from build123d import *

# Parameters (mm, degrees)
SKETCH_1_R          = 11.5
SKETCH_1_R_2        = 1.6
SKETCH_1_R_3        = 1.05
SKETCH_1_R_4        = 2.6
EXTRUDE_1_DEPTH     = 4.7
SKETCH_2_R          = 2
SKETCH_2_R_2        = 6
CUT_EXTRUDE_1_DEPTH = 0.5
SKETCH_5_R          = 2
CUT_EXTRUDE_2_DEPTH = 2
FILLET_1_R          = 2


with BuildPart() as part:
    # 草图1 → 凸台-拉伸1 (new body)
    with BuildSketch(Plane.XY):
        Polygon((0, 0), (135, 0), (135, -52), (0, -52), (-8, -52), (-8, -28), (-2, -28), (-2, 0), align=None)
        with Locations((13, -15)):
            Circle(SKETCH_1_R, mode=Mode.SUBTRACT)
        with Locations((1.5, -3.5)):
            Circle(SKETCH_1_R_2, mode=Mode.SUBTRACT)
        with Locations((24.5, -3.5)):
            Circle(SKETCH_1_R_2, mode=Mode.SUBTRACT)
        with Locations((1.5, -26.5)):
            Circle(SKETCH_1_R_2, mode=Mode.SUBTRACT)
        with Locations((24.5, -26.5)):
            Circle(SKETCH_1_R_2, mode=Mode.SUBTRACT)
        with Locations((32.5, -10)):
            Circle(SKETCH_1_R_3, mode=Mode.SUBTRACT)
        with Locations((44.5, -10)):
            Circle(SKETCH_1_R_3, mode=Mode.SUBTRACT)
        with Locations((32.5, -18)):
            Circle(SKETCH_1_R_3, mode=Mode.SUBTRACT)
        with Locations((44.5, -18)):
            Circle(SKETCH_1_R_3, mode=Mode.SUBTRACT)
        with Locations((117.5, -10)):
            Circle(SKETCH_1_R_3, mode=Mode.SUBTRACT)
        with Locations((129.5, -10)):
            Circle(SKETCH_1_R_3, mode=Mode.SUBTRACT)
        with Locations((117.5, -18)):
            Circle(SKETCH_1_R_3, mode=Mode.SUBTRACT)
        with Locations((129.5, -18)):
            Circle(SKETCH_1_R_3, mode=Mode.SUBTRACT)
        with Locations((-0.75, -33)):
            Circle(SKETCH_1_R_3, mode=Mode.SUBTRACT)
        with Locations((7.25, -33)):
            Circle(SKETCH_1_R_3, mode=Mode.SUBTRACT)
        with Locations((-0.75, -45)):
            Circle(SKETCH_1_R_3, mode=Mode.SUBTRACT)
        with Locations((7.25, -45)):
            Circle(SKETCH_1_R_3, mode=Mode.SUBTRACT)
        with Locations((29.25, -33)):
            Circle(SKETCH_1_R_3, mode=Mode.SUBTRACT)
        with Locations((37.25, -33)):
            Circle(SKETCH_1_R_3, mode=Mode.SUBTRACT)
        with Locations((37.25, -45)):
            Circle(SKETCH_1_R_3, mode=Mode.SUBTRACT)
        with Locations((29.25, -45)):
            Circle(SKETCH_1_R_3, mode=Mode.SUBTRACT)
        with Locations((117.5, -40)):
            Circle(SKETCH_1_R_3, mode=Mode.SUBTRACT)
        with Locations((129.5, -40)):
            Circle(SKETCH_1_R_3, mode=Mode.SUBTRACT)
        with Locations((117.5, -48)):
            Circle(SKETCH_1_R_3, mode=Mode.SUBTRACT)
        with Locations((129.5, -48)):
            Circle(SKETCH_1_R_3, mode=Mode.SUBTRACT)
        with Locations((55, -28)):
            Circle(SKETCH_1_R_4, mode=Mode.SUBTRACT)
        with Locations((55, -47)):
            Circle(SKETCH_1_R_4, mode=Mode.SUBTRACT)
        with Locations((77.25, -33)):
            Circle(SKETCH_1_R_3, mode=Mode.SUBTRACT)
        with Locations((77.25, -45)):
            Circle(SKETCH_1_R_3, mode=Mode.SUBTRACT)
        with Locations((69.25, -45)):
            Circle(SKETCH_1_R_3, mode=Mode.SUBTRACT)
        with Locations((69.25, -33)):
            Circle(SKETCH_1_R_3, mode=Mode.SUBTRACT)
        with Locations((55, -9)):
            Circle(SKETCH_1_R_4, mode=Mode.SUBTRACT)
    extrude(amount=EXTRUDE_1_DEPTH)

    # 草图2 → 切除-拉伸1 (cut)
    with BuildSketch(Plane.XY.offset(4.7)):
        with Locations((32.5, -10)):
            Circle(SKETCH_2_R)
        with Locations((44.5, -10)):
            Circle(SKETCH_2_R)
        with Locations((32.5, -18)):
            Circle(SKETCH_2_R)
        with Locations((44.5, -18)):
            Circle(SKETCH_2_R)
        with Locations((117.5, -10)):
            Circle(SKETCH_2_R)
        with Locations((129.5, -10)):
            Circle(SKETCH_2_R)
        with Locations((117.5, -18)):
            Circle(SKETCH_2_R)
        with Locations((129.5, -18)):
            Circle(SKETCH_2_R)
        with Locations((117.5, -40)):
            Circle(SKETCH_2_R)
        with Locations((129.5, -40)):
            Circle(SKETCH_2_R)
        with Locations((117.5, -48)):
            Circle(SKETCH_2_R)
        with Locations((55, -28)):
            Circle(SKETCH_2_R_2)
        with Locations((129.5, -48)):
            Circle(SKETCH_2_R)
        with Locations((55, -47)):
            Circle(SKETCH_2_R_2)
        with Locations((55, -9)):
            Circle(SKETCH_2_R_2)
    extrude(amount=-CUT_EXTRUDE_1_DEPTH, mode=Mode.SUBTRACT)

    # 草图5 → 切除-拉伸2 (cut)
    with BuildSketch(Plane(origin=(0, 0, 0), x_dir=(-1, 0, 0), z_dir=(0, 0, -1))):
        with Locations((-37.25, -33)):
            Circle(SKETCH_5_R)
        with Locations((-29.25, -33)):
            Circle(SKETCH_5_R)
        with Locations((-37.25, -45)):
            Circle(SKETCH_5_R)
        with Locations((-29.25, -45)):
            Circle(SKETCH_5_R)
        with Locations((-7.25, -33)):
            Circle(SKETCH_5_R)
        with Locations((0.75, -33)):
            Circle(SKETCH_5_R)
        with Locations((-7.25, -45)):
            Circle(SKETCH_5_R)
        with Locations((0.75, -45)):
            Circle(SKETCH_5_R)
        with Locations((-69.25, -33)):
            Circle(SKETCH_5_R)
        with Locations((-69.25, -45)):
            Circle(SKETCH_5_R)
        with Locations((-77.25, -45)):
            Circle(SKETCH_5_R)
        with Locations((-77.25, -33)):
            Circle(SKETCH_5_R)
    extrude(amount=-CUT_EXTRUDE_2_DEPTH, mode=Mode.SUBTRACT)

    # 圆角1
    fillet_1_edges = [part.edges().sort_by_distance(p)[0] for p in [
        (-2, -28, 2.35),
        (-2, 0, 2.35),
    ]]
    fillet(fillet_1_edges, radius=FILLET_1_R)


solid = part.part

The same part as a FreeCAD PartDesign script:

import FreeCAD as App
import Part
import Sketcher
from FreeCAD import Vector


def edges_at(feature, points):
    """Names of the edges that pass closest to the given points."""
    edges = feature.Shape.Edges
    near = lambda p: min(range(len(edges)), key=lambda i: edges[i].distToShape(Part.Vertex(*p))[0])
    return sorted({f"Edge{near(p) + 1}" for p in points})

doc = App.newDocument("Part")
body = doc.addObject("PartDesign::Body", "Body")

# Sketch on XY plane
sketch1 = body.newObject("Sketcher::SketchObject", "Sketch")
sketch1.AttachmentSupport = (doc.getObject("XY_Plane"), [""])
sketch1.MapMode = "FlatFace"
sketch1.addGeometry([
    Part.LineSegment(Vector(135, 0, 0), Vector(-2, 0, 0)),  # 0
    Part.LineSegment(Vector(-2, 0, 0), Vector(-2, -28, 0)),  # 1
    Part.LineSegment(Vector(-2, -28, 0), Vector(-8, -28, 0)),  # 2
    Part.LineSegment(Vector(-8, -28, 0), Vector(-8, -52, 0)),  # 3
    Part.LineSegment(Vector(-8, -52, 0), Vector(135, -52, 0)),  # 4
    Part.LineSegment(Vector(135, -52, 0), Vector(135, 0, 0)),  # 5
    Part.Circle(Vector(129.5, -48, 0), Vector(0, 0, 1), 1.05),  # 6
    Part.Circle(Vector(117.5, -48, 0), Vector(0, 0, 1), 1.05),  # 7
    Part.Circle(Vector(129.5, -40, 0), Vector(0, 0, 1), 1.05),  # 8
    Part.Circle(Vector(117.5, -40, 0), Vector(0, 0, 1), 1.05),  # 9
    Part.Circle(Vector(77.25, -45, 0), Vector(0, 0, 1), 1.05),  # 10
    Part.Circle(Vector(69.25, -45, 0), Vector(0, 0, 1), 1.05),  # 11
    Part.Circle(Vector(77.25, -33, 0), Vector(0, 0, 1), 1.05),  # 12
    Part.Circle(Vector(69.25, -33, 0), Vector(0, 0, 1), 1.05),  # 13
    Part.Circle(Vector(55, -47, 0), Vector(0, 0, 1), 2.6),  # 14
    Part.Circle(Vector(37.25, -45, 0), Vector(0, 0, 1), 1.05),  # 15
    Part.Circle(Vector(29.25, -45, 0), Vector(0, 0, 1), 1.05),  # 16
    Part.Circle(Vector(7.25, -45, 0), Vector(0, 0, 1), 1.05),  # 17
    Part.Circle(Vector(-0.75, -45, 0), Vector(0, 0, 1), 1.05),  # 18
    Part.Circle(Vector(37.25, -33, 0), Vector(0, 0, 1), 1.05),  # 19
    Part.Circle(Vector(55, -28, 0), Vector(0, 0, 1), 2.6),  # 20
    Part.Circle(Vector(29.25, -33, 0), Vector(0, 0, 1), 1.05),  # 21
    Part.Circle(Vector(7.25, -33, 0), Vector(0, 0, 1), 1.05),  # 22
    Part.Circle(Vector(-0.75, -33, 0), Vector(0, 0, 1), 1.05),  # 23
    Part.Circle(Vector(24.5, -26.5, 0), Vector(0, 0, 1), 1.6),  # 24
    Part.Circle(Vector(1.5, -26.5, 0), Vector(0, 0, 1), 1.6),  # 25
    Part.Circle(Vector(129.5, -18, 0), Vector(0, 0, 1), 1.05),  # 26
    Part.Circle(Vector(117.5, -18, 0), Vector(0, 0, 1), 1.05),  # 27
    Part.Circle(Vector(129.5, -10, 0), Vector(0, 0, 1), 1.05),  # 28
    Part.Circle(Vector(117.5, -10, 0), Vector(0, 0, 1), 1.05),  # 29
    Part.Circle(Vector(44.5, -18, 0), Vector(0, 0, 1), 1.05),  # 30
    Part.Circle(Vector(32.5, -18, 0), Vector(0, 0, 1), 1.05),  # 31
    Part.Circle(Vector(13, -15, 0), Vector(0, 0, 1), 11.5),  # 32
    Part.Circle(Vector(55, -9, 0), Vector(0, 0, 1), 2.6),  # 33
    Part.Circle(Vector(44.5, -10, 0), Vector(0, 0, 1), 1.05),  # 34
    Part.Circle(Vector(32.5, -10, 0), Vector(0, 0, 1), 1.05),  # 35
    Part.Circle(Vector(24.5, -3.5, 0), Vector(0, 0, 1), 1.6),  # 36
    Part.Circle(Vector(1.5, -3.5, 0), Vector(0, 0, 1), 1.6),  # 37
], False)
sketch1.addConstraint([
    Sketcher.Constraint("Coincident", 0, 2, 1, 1),
    Sketcher.Constraint("Coincident", 1, 2, 2, 1),
    Sketcher.Constraint("Coincident", 2, 2, 3, 1),
    Sketcher.Constraint("Coincident", 3, 2, 4, 1),
    Sketcher.Constraint("Coincident", 4, 2, 5, 1),
    Sketcher.Constraint("Coincident", 5, 2, 0, 1),
    Sketcher.Constraint("Horizontal", 0),
    Sketcher.Constraint("Vertical", 1),
    Sketcher.Constraint("Horizontal", 2),
    Sketcher.Constraint("Vertical", 3),
    Sketcher.Constraint("Horizontal", 4),
    Sketcher.Constraint("Vertical", 5),
    Sketcher.Constraint("Equal", 6, 7),
    Sketcher.Constraint("Equal", 7, 8),
    Sketcher.Constraint("Equal", 8, 9),
    Sketcher.Constraint("Equal", 9, 10),
    Sketcher.Constraint("Equal", 10, 11),
    Sketcher.Constraint("Equal", 11, 12),
    Sketcher.Constraint("Equal", 12, 13),
    Sketcher.Constraint("Equal", 13, 15),
    Sketcher.Constraint("Equal", 15, 16),
    Sketcher.Constraint("Equal", 16, 17),
    Sketcher.Constraint("Equal", 17, 18),
    Sketcher.Constraint("Equal", 18, 19),
    Sketcher.Constraint("Equal", 14, 20),
    Sketcher.Constraint("Equal", 19, 21),
    Sketcher.Constraint("Equal", 21, 22),
    Sketcher.Constraint("Equal", 22, 23),
    Sketcher.Constraint("Equal", 24, 25),
    Sketcher.Constraint("Equal", 23, 26),
    Sketcher.Constraint("Equal", 26, 27),
    Sketcher.Constraint("Equal", 27, 28),
    Sketcher.Constraint("Equal", 28, 29),
    Sketcher.Constraint("Equal", 29, 30),
    Sketcher.Constraint("Equal", 30, 31),
    Sketcher.Constraint("Equal", 20, 33),
    Sketcher.Constraint("Equal", 31, 34),
    Sketcher.Constraint("Equal", 34, 35),
    Sketcher.Constraint("Equal", 25, 36),
    Sketcher.Constraint("Equal", 36, 37),
    Sketcher.Constraint("PointOnObject", 0, 2, -1),
    Sketcher.Constraint("Horizontal", 6, 3, 7, 3),
    Sketcher.Constraint("Horizontal", 8, 3, 9, 3),
    Sketcher.Constraint("Horizontal", 10, 3, 11, 3),
    Sketcher.Constraint("Horizontal", 12, 3, 13, 3),
    Sketcher.Constraint("Horizontal", 11, 3, 15, 3),
    Sketcher.Constraint("Horizontal", 15, 3, 16, 3),
    Sketcher.Constraint("Horizontal", 16, 3, 17, 3),
    Sketcher.Constraint("Horizontal", 17, 3, 18, 3),
    Sketcher.Constraint("Horizontal", 13, 3, 19, 3),
    Sketcher.Constraint("Horizontal", 19, 3, 21, 3),
    Sketcher.Constraint("Horizontal", 21, 3, 22, 3),
    Sketcher.Constraint("Horizontal", 22, 3, 23, 3),
    Sketcher.Constraint("Horizontal", 24, 3, 25, 3),
    Sketcher.Constraint("Horizontal", 26, 3, 27, 3),
    Sketcher.Constraint("Horizontal", 28, 3, 29, 3),
    Sketcher.Constraint("Horizontal", 27, 3, 30, 3),
    Sketcher.Constraint("Horizontal", 30, 3, 31, 3),
    Sketcher.Constraint("Horizontal", 29, 3, 34, 3),
    Sketcher.Constraint("Horizontal", 34, 3, 35, 3),
    Sketcher.Constraint("Horizontal", 36, 3, 37, 3),
    Sketcher.Constraint("Horizontal", 20, 3, 1, 2),
    Sketcher.Constraint("Vertical", 6, 3, 8, 3),
    Sketcher.Constraint("Vertical", 7, 3, 9, 3),
    Sketcher.Constraint("Vertical", 10, 3, 12, 3),
    Sketcher.Constraint("Vertical", 11, 3, 13, 3),
    Sketcher.Constraint("Vertical", 15, 3, 19, 3),
    Sketcher.Constraint("Vertical", 14, 3, 20, 3),
    Sketcher.Constraint("Vertical", 16, 3, 21, 3),
    Sketcher.Constraint("Vertical", 17, 3, 22, 3),
    Sketcher.Constraint("Vertical", 18, 3, 23, 3),
    Sketcher.Constraint("Vertical", 8, 3, 26, 3),
    Sketcher.Constraint("Vertical", 9, 3, 27, 3),
    Sketcher.Constraint("Vertical", 26, 3, 28, 3),
    Sketcher.Constraint("Vertical", 27, 3, 29, 3),
    Sketcher.Constraint("Vertical", 20, 3, 33, 3),
    Sketcher.Constraint("Vertical", 30, 3, 34, 3),
    Sketcher.Constraint("Vertical", 31, 3, 35, 3),
    Sketcher.Constraint("Vertical", 24, 3, 36, 3),
    Sketcher.Constraint("Vertical", 25, 3, 37, 3),
    Sketcher.Constraint("Diameter", 32, 23.0),
    Sketcher.Constraint("Diameter", 6, 2.1),
    Sketcher.Constraint("Diameter", 14, 5.2),
    Sketcher.Constraint("Diameter", 24, 3.2),
    Sketcher.Constraint("DistanceX", 0, 2, 0, 1, 137.0),
    Sketcher.Constraint("DistanceX", 2, 2, 2, 1, 6.0),
    Sketcher.Constraint("DistanceY", 1, 2, 1, 1, 28.0),
    Sketcher.Constraint("DistanceY", 3, 2, 3, 1, 24.0),
    Sketcher.Constraint("DistanceY", 6, 3, -1, 1, 48.0),
    Sketcher.Constraint("DistanceY", 8, 3, -1, 1, 40.0),
    Sketcher.Constraint("DistanceY", 10, 3, -1, 1, 45.0),
    Sketcher.Constraint("DistanceY", 12, 3, -1, 1, 33.0),
    Sketcher.Constraint("DistanceX", -1, 1, 14, 3, 55.0),
    Sketcher.Constraint("DistanceY", 14, 3, -1, 1, 47.0),
    Sketcher.Constraint("DistanceY", 26, 3, -1, 1, 18.0),
    Sketcher.Constraint("DistanceY", 28, 3, -1, 1, 10.0),
    Sketcher.Constraint("DistanceX", -1, 1, 32, 3, 13.0),
    Sketcher.Constraint("DistanceY", 32, 3, -1, 1, 15.0),
    Sketcher.Constraint("DistanceY", 33, 3, -1, 1, 9.0),
    Sketcher.Constraint("DistanceX", 0, 2, -1, 1, 2.0),
    Sketcher.Constraint("DistanceX", 7, 3, 6, 3, 12.0),
    Sketcher.Constraint("DistanceX", 11, 3, 10, 3, 8.0),
    Sketcher.Constraint("DistanceX", 15, 3, 11, 3, 32.0),
    Sketcher.Constraint("DistanceX", 16, 3, 15, 3, 8.0),
    Sketcher.Constraint("DistanceX", 17, 3, 16, 3, 22.0),
    Sketcher.Constraint("DistanceX", 18, 3, 17, 3, 8.0),
    Sketcher.Constraint("DistanceX", 25, 3, 24, 3, 23.0),
    Sketcher.Constraint("DistanceX", 24, 3, 30, 3, 20.0),
    Sketcher.Constraint("DistanceX", 24, 3, 31, 3, 8.0),
    Sketcher.Constraint("DistanceY", 24, 3, 36, 3, 23.0),
    Sketcher.Constraint("DistanceX", -1, 1, 6, 3, 129.5),
    Sketcher.Constraint("DistanceX", -1, 1, 24, 3, 24.5),
    Sketcher.Constraint("DistanceY", 24, 3, -1, 1, 26.5),
    Sketcher.Constraint("DistanceX", -1, 1, 10, 3, 77.25),
])
pad1 = body.newObject("PartDesign::Pad", "Pad")
pad1.Profile = sketch1
pad1.Length = 4.7

# Sketch on XY plane
sketch2 = body.newObject("Sketcher::SketchObject", "Sketch001")
sketch2.AttachmentSupport = (doc.getObject("XY_Plane"), [""])
sketch2.MapMode = "FlatFace"
sketch2.AttachmentOffset = App.Placement(Vector(0, 0, 4.7), App.Rotation())
sketch2.addGeometry([
    Part.Circle(Vector(32.5, -10, 0), Vector(0, 0, 1), 2),  # 0
    Part.Circle(Vector(44.5, -10, 0), Vector(0, 0, 1), 2),  # 1
    Part.Circle(Vector(32.5, -18, 0), Vector(0, 0, 1), 2),  # 2
    Part.Circle(Vector(44.5, -18, 0), Vector(0, 0, 1), 2),  # 3
    Part.Circle(Vector(117.5, -10, 0), Vector(0, 0, 1), 2),  # 4
    Part.Circle(Vector(129.5, -10, 0), Vector(0, 0, 1), 2),  # 5
    Part.Circle(Vector(117.5, -18, 0), Vector(0, 0, 1), 2),  # 6
    Part.Circle(Vector(129.5, -18, 0), Vector(0, 0, 1), 2),  # 7
    Part.Circle(Vector(117.5, -40, 0), Vector(0, 0, 1), 2),  # 8
    Part.Circle(Vector(129.5, -40, 0), Vector(0, 0, 1), 2),  # 9
    Part.Circle(Vector(117.5, -48, 0), Vector(0, 0, 1), 2),  # 10
    Part.Circle(Vector(55, -28, 0), Vector(0, 0, 1), 6),  # 11
    Part.Circle(Vector(129.5, -48, 0), Vector(0, 0, 1), 2),  # 12
    Part.Circle(Vector(55, -47, 0), Vector(0, 0, 1), 6),  # 13
    Part.Circle(Vector(55, -9, 0), Vector(0, 0, 1), 6),  # 14
], False)
sketch2.addConstraint([
    Sketcher.Constraint("Equal", 0, 1),
    Sketcher.Constraint("Equal", 1, 2),
    Sketcher.Constraint("Equal", 2, 3),
    Sketcher.Constraint("Equal", 3, 4),
    Sketcher.Constraint("Equal", 4, 5),
    Sketcher.Constraint("Equal", 5, 6),
    Sketcher.Constraint("Equal", 6, 7),
    Sketcher.Constraint("Equal", 7, 8),
    Sketcher.Constraint("Equal", 8, 9),
    Sketcher.Constraint("Equal", 9, 10),
    Sketcher.Constraint("Equal", 10, 12),
    Sketcher.Constraint("Equal", 11, 13),
    Sketcher.Constraint("Equal", 13, 14),
    Sketcher.Constraint("Horizontal", 0, 3, 1, 3),
    Sketcher.Constraint("Horizontal", 2, 3, 3, 3),
    Sketcher.Constraint("Horizontal", 1, 3, 4, 3),
    Sketcher.Constraint("Horizontal", 4, 3, 5, 3),
    Sketcher.Constraint("Horizontal", 3, 3, 6, 3),
    Sketcher.Constraint("Horizontal", 6, 3, 7, 3),
    Sketcher.Constraint("Horizontal", 8, 3, 9, 3),
    Sketcher.Constraint("Horizontal", 10, 3, 12, 3),
    Sketcher.Constraint("Vertical", 0, 3, 2, 3),
    Sketcher.Constraint("Vertical", 1, 3, 3, 3),
    Sketcher.Constraint("Vertical", 4, 3, 6, 3),
    Sketcher.Constraint("Vertical", 5, 3, 7, 3),
    Sketcher.Constraint("Vertical", 6, 3, 8, 3),
    Sketcher.Constraint("Vertical", 7, 3, 9, 3),
    Sketcher.Constraint("Vertical", 8, 3, 10, 3),
    Sketcher.Constraint("Vertical", 9, 3, 12, 3),
    Sketcher.Constraint("Vertical", 11, 3, 13, 3),
    Sketcher.Constraint("Vertical", 13, 3, 14, 3),
    Sketcher.Constraint("Diameter", 0, 4.0),
    Sketcher.Constraint("Diameter", 11, 12.0),
    Sketcher.Constraint("DistanceY", 0, 3, -1, 1, 10.0),
    Sketcher.Constraint("DistanceY", 2, 3, -1, 1, 18.0),
    Sketcher.Constraint("DistanceY", 8, 3, -1, 1, 40.0),
    Sketcher.Constraint("DistanceY", 10, 3, -1, 1, 48.0),
    Sketcher.Constraint("DistanceX", -1, 1, 11, 3, 55.0),
    Sketcher.Constraint("DistanceY", 11, 3, -1, 1, 28.0),
    Sketcher.Constraint("DistanceY", 13, 3, -1, 1, 47.0),
    Sketcher.Constraint("DistanceY", 14, 3, -1, 1, 9.0),
    Sketcher.Constraint("DistanceX", 0, 3, 1, 3, 12.0),
    Sketcher.Constraint("DistanceX", 1, 3, 4, 3, 73.0),
    Sketcher.Constraint("DistanceX", 4, 3, 5, 3, 12.0),
    Sketcher.Constraint("DistanceX", -1, 1, 0, 3, 32.5),
])
pocket1 = body.newObject("PartDesign::Pocket", "Pocket")
pocket1.Profile = sketch2
pocket1.Length = 0.5

# Sketch on XY plane
sketch3 = body.newObject("Sketcher::SketchObject", "Sketch002")
sketch3.AttachmentSupport = (doc.getObject("XY_Plane"), [""])
sketch3.MapMode = "FlatFace"
sketch3.addGeometry([
    Part.Circle(Vector(37.25, -33, 0), Vector(0, 0, 1), 2),  # 0
    Part.Circle(Vector(29.25, -33, 0), Vector(0, 0, 1), 2),  # 1
    Part.Circle(Vector(37.25, -45, 0), Vector(0, 0, 1), 2),  # 2
    Part.Circle(Vector(29.25, -45, 0), Vector(0, 0, 1), 2),  # 3
    Part.Circle(Vector(7.25, -33, 0), Vector(0, 0, 1), 2),  # 4
    Part.Circle(Vector(-0.75, -33, 0), Vector(0, 0, 1), 2),  # 5
    Part.Circle(Vector(7.25, -45, 0), Vector(0, 0, 1), 2),  # 6
    Part.Circle(Vector(-0.75, -45, 0), Vector(0, 0, 1), 2),  # 7
    Part.Circle(Vector(69.25, -33, 0), Vector(0, 0, 1), 2),  # 8
    Part.Circle(Vector(69.25, -45, 0), Vector(0, 0, 1), 2),  # 9
    Part.Circle(Vector(77.25, -45, 0), Vector(0, 0, 1), 2),  # 10
    Part.Circle(Vector(77.25, -33, 0), Vector(0, 0, 1), 2),  # 11
], False)
sketch3.addConstraint([
    Sketcher.Constraint("Equal", 0, 1),
    Sketcher.Constraint("Equal", 1, 2),
    Sketcher.Constraint("Equal", 2, 3),
    Sketcher.Constraint("Equal", 3, 4),
    Sketcher.Constraint("Equal", 4, 5),
    Sketcher.Constraint("Equal", 5, 6),
    Sketcher.Constraint("Equal", 6, 7),
    Sketcher.Constraint("Equal", 7, 8),
    Sketcher.Constraint("Equal", 8, 9),
    Sketcher.Constraint("Equal", 9, 10),
    Sketcher.Constraint("Equal", 10, 11),
    Sketcher.Constraint("Horizontal", 0, 3, 1, 3),
    Sketcher.Constraint("Horizontal", 2, 3, 3, 3),
    Sketcher.Constraint("Horizontal", 1, 3, 4, 3),
    Sketcher.Constraint("Horizontal", 4, 3, 5, 3),
    Sketcher.Constraint("Horizontal", 3, 3, 6, 3),
    Sketcher.Constraint("Horizontal", 6, 3, 7, 3),
    Sketcher.Constraint("Horizontal", 5, 3, 8, 3),
    Sketcher.Constraint("Horizontal", 7, 3, 9, 3),
    Sketcher.Constraint("Horizontal", 9, 3, 10, 3),
    Sketcher.Constraint("Horizontal", 8, 3, 11, 3),
    Sketcher.Constraint("Vertical", 0, 3, 2, 3),
    Sketcher.Constraint("Vertical", 1, 3, 3, 3),
    Sketcher.Constraint("Vertical", 4, 3, 6, 3),
    Sketcher.Constraint("Vertical", 5, 3, 7, 3),
    Sketcher.Constraint("Vertical", 8, 3, 9, 3),
    Sketcher.Constraint("Vertical", 10, 3, 11, 3),
    Sketcher.Constraint("Diameter", 0, 4.0),
    Sketcher.Constraint("DistanceY", 0, 3, -1, 1, 33.0),
    Sketcher.Constraint("DistanceY", 2, 3, -1, 1, 45.0),
    Sketcher.Constraint("DistanceX", 1, 3, 0, 3, 8.0),
    Sketcher.Constraint("DistanceX", 4, 3, 1, 3, 22.0),
    Sketcher.Constraint("DistanceX", 5, 3, 4, 3, 8.0),
    Sketcher.Constraint("DistanceX", 0, 3, 8, 3, 32.0),
    Sketcher.Constraint("DistanceX", 9, 3, 10, 3, 8.0),
    Sketcher.Constraint("DistanceX", -1, 1, 0, 3, 37.25),
])
pocket2 = body.newObject("PartDesign::Pocket", "Pocket001")
pocket2.Profile = sketch3
pocket2.Length = 2
pocket2.Reversed = True
doc.recompute()

fillet = body.newObject("PartDesign::Fillet", "Fillet")
fillet.Base = (pocket2, edges_at(pocket2, [(-2, -28, 2.35), (-2, 0, 2.35)]))
fillet.Radius = 2

doc.recompute()
